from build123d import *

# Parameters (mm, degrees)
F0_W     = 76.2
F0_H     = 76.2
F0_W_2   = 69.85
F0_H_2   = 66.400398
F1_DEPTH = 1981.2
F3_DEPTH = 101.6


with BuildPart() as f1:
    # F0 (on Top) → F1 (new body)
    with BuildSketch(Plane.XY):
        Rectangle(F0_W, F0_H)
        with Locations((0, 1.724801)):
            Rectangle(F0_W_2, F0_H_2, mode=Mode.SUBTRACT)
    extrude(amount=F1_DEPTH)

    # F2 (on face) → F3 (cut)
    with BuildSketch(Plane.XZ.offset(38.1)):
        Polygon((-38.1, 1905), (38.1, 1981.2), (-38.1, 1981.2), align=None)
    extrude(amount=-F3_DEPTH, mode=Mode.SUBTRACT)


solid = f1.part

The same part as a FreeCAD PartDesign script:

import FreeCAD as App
import Part
import Sketcher

V = App.Vector
Q = App.Units.Quantity


def add_polygon(sketch, points):
    """Adds a closed chain of lines whose ends are joined by coincident constraints."""
    first, n = sketch.GeometryCount, len(points)
    for a, b in zip(points, points[1:] + points[:1]):
        sketch.addGeometry(Part.LineSegment(App.Vector(*a, 0), App.Vector(*b, 0)), False)
    for i in range(n):
        sketch.addConstraint(Sketcher.Constraint("Coincident", first + i, 2, first + (i + 1) % n, 1))

doc = App.newDocument("Part")
body = doc.addObject("PartDesign::Body", "Body")

# Sketch on XY plane
sketch1 = body.newObject("Sketcher::SketchObject", "Sketch")
sketch1.AttachmentSupport = (doc.getObject("XY_Plane"), [""])
sketch1.MapMode = "FlatFace"
add_polygon(sketch1, [(-38, 38), (-38, -38), (38, -38), (38, 38)])  # lines 0-3
add_polygon(sketch1, [(35, -31), (-35, -31), (-35, 35), (35, 35)])  # lines 4-7
sketch1.addConstraint(Sketcher.Constraint("Vertical", 0))
sketch1.addConstraint(Sketcher.Constraint("Horizontal", 1))
sketch1.addConstraint(Sketcher.Constraint("Vertical", 2))
sketch1.addConstraint(Sketcher.Constraint("Horizontal", 3))
sketch1.addConstraint(Sketcher.Constraint("Horizontal", 4))
sketch1.addConstraint(Sketcher.Constraint("Vertical", 5))
sketch1.addConstraint(Sketcher.Constraint("Horizontal", 6))
sketch1.addConstraint(Sketcher.Constraint("Vertical", 7))
sketch1.addConstraint(Sketcher.Constraint("Symmetric", 0, 2, 2, 2, -1, 1))
sketch1.addConstraint(Sketcher.Constraint("Equal", 3, 0))
sketch1.addConstraint(Sketcher.Constraint("DistanceX", 1, 1, 1, 2, Q("3 in")))
sketch1.addConstraint(Sketcher.Constraint("DistanceX", 4, 2, 4, 1, Q("2.75 in")))
sketch1.addConstraint(Sketcher.Constraint("DistanceX", 4, 2, -1, 1, Q("1.375 in")))
sketch1.addConstraint(Sketcher.Constraint("DistanceY", -1, 1, 5, 2, Q("1.375 in")))
sketch1.addConstraint(Sketcher.Constraint("DistanceY", 4, 2, 3, 2, 69.575398))
pad1 = body.newObject("PartDesign::Pad", "Pad")
pad1.Profile = sketch1
pad1.Length = Q("78 in")

# Sketch on XZ plane
sketch2 = body.newObject("Sketcher::SketchObject", "Sketch001")
sketch2.AttachmentSupport = (doc.getObject("XZ_Plane"), [""])
sketch2.MapMode = "FlatFace"
sketch2.AttachmentOffset = App.Placement(V(0, 0, 1.5 * 25.4), App.Rotation())
add_polygon(sketch2, [(-38, 1905), (38, 1981), (-38, 1981)])  # lines 0-2
sketch2.addConstraint(Sketcher.Constraint("Horizontal", 1))
sketch2.addConstraint(Sketcher.Constraint("Vertical", 2))
sketch2.addConstraint(Sketcher.Constraint("Equal", 1, 2))
sketch2.addConstraint(Sketcher.Constraint("DistanceX", 1, 2, 1, 1, Q("3 in")))
sketch2.addConstraint(Sketcher.Constraint("DistanceY", -1, 1, 0, 2, Q("78 in")))
sketch2.addConstraint(Sketcher.Constraint("DistanceX", -1, 1, 0, 2, Q("1.5 in")))
pocket1 = body.newObject("PartDesign::Pocket", "Pocket")
pocket1.Profile = sketch2
pocket1.Length = Q("4 in")

doc.recompute()
